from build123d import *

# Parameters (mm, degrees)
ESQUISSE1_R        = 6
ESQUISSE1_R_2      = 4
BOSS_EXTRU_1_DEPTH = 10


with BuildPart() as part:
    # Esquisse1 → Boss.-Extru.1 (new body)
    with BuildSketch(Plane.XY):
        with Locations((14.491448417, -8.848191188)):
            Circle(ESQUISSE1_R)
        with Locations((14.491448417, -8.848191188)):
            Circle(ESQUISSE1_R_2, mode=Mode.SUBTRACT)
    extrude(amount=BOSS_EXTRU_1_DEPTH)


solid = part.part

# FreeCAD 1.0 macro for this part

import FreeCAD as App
import Part
import Sketcher
Q = App.Units.Quantity

doc = App.newDocument("Part")
body = doc.addObject("PartDesign::Body", "Body")

sketch1 = body.newObject("Sketcher::SketchObject", "Sketch")
sketch1.AttachmentSupport = (doc.getObject("XY_Plane"), [""])
sketch1.MapMode = "FlatFace"
sketch1.addGeometry([
    Part.Circle(App.Vector(14.491448, -8.848191, 0), App.Vector(0, 0, 1), 6),
    Part.Circle(App.Vector(14.491448, -8.848191, 0), App.Vector(0, 0, 1), 4),
], False)
sketch1.addConstraint([
    Sketcher.Constraint("Coincident", 1, 3, 0, 3),
    Sketcher.Constraint("Diameter", 0, Q("12 mm")),
    Sketcher.Constraint("Diameter", 1, Q("8 mm")),
    Sketcher.Constraint("DistanceX", -1, 1, 0, 3, Q("14.491448 mm")),
    Sketcher.Constraint("DistanceY", 0, 3, -1, 1, Q("8.848191 mm")),
])
pad1 = body.newObject("PartDesign::Pad", "Pad")
pad1.Profile = sketch1
pad1.Length = 10

doc.recompute()
